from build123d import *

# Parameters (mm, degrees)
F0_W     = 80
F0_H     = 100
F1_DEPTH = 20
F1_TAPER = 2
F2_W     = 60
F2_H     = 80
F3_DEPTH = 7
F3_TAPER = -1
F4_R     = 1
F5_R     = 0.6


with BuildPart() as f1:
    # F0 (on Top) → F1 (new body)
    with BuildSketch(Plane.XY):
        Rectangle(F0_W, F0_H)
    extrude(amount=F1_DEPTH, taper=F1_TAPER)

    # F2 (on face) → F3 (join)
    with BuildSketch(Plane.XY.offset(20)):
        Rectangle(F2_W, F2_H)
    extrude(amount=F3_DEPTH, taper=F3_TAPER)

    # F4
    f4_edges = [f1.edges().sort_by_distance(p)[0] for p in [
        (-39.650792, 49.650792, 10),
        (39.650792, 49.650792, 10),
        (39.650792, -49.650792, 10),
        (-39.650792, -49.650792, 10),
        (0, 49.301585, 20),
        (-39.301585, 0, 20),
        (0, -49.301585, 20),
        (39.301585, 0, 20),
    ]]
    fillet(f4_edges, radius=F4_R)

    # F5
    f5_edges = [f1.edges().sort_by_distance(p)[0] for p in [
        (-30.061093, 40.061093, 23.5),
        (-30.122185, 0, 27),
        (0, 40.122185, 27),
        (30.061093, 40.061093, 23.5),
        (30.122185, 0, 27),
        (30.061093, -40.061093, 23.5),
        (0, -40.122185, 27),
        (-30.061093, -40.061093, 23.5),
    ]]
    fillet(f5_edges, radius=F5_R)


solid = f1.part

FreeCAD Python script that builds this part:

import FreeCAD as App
import Part
import Sketcher
from FreeCAD import Vector
Q = App.Units.Quantity


def edges_at(feature, points):
    """Names of the edges that pass closest to the given points."""
    edges = feature.Shape.Edges
    near = lambda p: min(range(len(edges)), key=lambda i: edges[i].distToShape(Part.Vertex(*p))[0])
    return sorted({f"Edge{near(p) + 1}" for p in points})


def add_polygon(sketch, points):
    """Adds a closed chain of lines whose ends are joined by coincident constraints."""
    first, n = sketch.GeometryCount, len(points)
    for a, b in zip(points, points[1:] + points[:1]):
        sketch.addGeometry(Part.LineSegment(App.Vector(*a, 0), App.Vector(*b, 0)), False)
    for i in range(n):
        sketch.addConstraint(Sketcher.Constraint("Coincident", first + i, 2, first + (i + 1) % n, 1))

doc = App.newDocument("Part")
body = doc.addObject("PartDesign::Body", "Body")

# Sketch on XY plane
sketch1 = body.newObject("Sketcher::SketchObject", "Sketch")
sketch1.AttachmentSupport = (doc.getObject("XY_Plane"), [""])
sketch1.MapMode = "FlatFace"
add_polygon(sketch1, [(-40, 50), (-40, -50), (40, -50), (40, 50)])  # lines 0-3
sketch1.addConstraint([
    Sketcher.Constraint("Vertical", 0),
    Sketcher.Constraint("Horizontal", 1),
    Sketcher.Constraint("Vertical", 2),
    Sketcher.Constraint("Horizontal", 3),
    Sketcher.Constraint("Symmetric", 0, 2, 2, 2, -1, 1),
    Sketcher.Constraint("DistanceX", 1, 1, 1, 2, Q("80 mm")),
    Sketcher.Constraint("DistanceY", 0, 2, 0, 1, Q("100 mm")),
])
pad1 = body.newObject("PartDesign::Pad", "Pad")
pad1.Profile = sketch1
pad1.Length = 20
pad1.TaperAngle = -2

# Sketch on XY plane
sketch2 = body.newObject("Sketcher::SketchObject", "Sketch001")
sketch2.AttachmentSupport = (doc.getObject("XY_Plane"), [""])
sketch2.MapMode = "FlatFace"
sketch2.AttachmentOffset = App.Placement(Vector(0, 0, 20), App.Rotation())
add_polygon(sketch2, [(-30, 40), (-30, -40), (30, -40), (30, 40)])  # lines 0-3
sketch2.addConstraint([
    Sketcher.Constraint("Vertical", 0),
    Sketcher.Constraint("Horizontal", 1),
    Sketcher.Constraint("Vertical", 2),
    Sketcher.Constraint("Horizontal", 3),
    Sketcher.Constraint("Symmetric", 0, 2, 2, 2, -1, 1),
    Sketcher.Constraint("DistanceX", 1, 1, 1, 2, Q("60 mm")),
    Sketcher.Constraint("DistanceY", 0, 2, 0, 1, Q("80 mm")),
])
pad2 = body.newObject("PartDesign::Pad", "Pad001")
pad2.Profile = sketch2
pad2.Length = 7
pad2.TaperAngle = 1
doc.recompute()

fillet = body.newObject("PartDesign::Fillet", "Fillet")
fillet.Base = (pad2, edges_at(pad2, [
    (-39.651, 49.651, 10),
    (39.651, 49.651, 10),
    (39.651, -49.651, 10),
    (-39.651, -49.651, 10),
    (0, 49.302, 20),
    (-39.302, 0, 20),
    (0, -49.302, 20),
    (39.302, 0, 20),
]))
fillet.Radius = 1
doc.recompute()

fillet2 = body.newObject("PartDesign::Fillet", "Fillet001")
fillet2.Base = (fillet, edges_at(fillet, [
    (-30.061, 40.061, 23.5),
    (-30.122, 0, 27),
    (0, 40.122, 27),
    (30.061, 40.061, 23.5),
    (30.122, 0, 27),
    (30.061, -40.061, 23.5),
    (0, -40.122, 27),
    (-30.061, -40.061, 23.5),
]))
fillet2.Radius = 0.6

doc.recompute()
